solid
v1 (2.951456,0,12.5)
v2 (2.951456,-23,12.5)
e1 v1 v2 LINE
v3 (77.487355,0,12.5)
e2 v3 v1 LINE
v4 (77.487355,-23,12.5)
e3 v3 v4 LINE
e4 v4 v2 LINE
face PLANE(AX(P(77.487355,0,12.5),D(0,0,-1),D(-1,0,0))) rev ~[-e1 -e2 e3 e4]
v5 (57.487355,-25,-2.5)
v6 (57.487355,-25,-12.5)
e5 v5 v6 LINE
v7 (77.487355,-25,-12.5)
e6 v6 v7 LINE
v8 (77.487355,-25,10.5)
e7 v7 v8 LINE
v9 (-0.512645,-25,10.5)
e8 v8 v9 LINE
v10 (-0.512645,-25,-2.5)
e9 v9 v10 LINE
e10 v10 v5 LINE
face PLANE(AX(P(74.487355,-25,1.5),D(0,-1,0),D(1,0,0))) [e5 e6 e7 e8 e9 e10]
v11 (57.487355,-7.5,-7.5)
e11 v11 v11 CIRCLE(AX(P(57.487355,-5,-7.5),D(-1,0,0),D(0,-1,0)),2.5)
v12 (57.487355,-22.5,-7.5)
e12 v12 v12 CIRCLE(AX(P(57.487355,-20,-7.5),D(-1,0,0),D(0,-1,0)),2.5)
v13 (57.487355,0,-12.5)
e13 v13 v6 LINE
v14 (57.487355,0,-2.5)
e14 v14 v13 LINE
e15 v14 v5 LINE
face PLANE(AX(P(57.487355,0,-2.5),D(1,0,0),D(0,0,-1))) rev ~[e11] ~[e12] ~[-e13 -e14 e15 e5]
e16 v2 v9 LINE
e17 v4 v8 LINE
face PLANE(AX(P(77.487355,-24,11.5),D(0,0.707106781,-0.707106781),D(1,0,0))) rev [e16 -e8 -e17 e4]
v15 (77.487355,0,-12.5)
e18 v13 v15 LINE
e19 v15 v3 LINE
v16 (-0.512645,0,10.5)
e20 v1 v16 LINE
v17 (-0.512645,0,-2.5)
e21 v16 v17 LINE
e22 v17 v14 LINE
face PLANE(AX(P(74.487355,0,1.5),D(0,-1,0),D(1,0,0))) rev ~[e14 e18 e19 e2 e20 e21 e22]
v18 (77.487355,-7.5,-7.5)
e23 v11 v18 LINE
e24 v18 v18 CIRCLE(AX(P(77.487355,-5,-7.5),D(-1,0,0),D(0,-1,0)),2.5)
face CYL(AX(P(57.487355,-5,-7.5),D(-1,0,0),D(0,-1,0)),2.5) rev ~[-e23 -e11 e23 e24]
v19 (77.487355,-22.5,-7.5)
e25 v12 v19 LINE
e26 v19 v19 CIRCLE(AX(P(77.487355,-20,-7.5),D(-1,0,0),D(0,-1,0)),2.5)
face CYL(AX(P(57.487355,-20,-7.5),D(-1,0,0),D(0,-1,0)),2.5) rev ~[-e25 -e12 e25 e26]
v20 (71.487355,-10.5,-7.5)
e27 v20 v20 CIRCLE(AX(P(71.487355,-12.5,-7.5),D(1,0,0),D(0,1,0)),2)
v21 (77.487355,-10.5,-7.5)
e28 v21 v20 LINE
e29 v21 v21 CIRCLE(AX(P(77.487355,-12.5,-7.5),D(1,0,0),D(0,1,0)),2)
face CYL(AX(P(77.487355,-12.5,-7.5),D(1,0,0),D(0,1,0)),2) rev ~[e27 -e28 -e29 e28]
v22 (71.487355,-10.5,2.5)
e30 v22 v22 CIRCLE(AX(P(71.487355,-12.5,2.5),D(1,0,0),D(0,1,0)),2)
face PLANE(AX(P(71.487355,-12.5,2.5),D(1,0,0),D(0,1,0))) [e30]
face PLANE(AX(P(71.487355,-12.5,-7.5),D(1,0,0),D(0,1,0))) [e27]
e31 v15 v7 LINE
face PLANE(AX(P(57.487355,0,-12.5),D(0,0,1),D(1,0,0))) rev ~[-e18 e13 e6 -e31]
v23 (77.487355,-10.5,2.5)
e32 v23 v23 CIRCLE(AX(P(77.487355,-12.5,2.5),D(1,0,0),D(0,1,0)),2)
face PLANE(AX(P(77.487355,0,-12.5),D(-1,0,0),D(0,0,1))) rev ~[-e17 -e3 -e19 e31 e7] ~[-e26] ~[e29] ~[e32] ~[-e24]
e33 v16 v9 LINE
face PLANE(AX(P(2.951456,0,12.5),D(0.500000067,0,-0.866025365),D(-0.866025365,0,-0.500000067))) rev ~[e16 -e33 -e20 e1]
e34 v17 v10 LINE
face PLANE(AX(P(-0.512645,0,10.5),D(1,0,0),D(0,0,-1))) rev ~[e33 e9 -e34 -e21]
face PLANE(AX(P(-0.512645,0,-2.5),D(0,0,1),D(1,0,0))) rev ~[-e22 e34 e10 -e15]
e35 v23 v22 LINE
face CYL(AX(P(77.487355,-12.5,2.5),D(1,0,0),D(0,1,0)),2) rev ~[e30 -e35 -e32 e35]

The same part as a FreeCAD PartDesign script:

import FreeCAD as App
import Part
import Sketcher
from FreeCAD import Vector
Q = App.Units.Quantity


def edges_at(feature, points):
    """Names of the edges that pass closest to the given points."""
    edges = feature.Shape.Edges
    near = lambda p: min(range(len(edges)), key=lambda i: edges[i].distToShape(Part.Vertex(*p))[0])
    return sorted({f"Edge{near(p) + 1}" for p in points})

doc = App.newDocument("Part")
params = doc.addObject("Spreadsheet::Sheet", "Params")
for row, (alias, value) in enumerate([
    ("sketch1_width", "58 mm"),
    ("sketch1_width2", "20 mm"),
    ("sketch1_height", "13 mm"),
    ("sketch1_height2", "10 mm"),
    ("sketch1_height3", "25 mm"),
    ("pad1_length", "25 mm"),
    ("sketch2_diameter", "5 mm"),
    ("sketch3_diameter", "4 mm"),
    ("pocket2_length", "6 mm"),
    ("chamfer_size", "2 mm"),
], start=1):
    params.set(f"A{row}", alias)
    params.set(f"B{row}", "=" + value)
    params.setAlias(f"B{row}", alias)

body = doc.addObject("PartDesign::Body", "Body")

sketch1 = doc.addObject("Sketcher::SketchObject", "Sketch")
body.addObject(sketch1)
sketch1.AttachmentSupport = (doc.XZ_Plane, [""])
sketch1.MapMode = "FlatFace"
sketch1.addGeometry(Part.LineSegment(Vector(77.487355, 12.5, 0), Vector(2.951456, 12.5, 0)), False)
sketch1.addGeometry(Part.LineSegment(Vector(2.951456, 12.5, 0), Vector(-0.512645, 10.5, 0)), False)
sketch1.addGeometry(Part.LineSegment(Vector(-0.512645, 10.5, 0), Vector(-0.512645, -2.5, 0)), False)
sketch1.addGeometry(Part.LineSegment(Vector(-0.512645, -2.5, 0), Vector(57.487355, -2.5, 0)), False)
sketch1.addGeometry(Part.LineSegment(Vector(57.487355, -2.5, 0), Vector(57.487355, -12.5, 0)), False)
sketch1.addGeometry(Part.LineSegment(Vector(57.487355, -12.5, 0), Vector(77.487355, -12.5, 0)), False)
sketch1.addGeometry(Part.LineSegment(Vector(77.487355, -12.5, 0), Vector(77.487355, 12.5, 0)), False)
sketch1.addConstraint(Sketcher.Constraint("Coincident", 0, 2, 1, 1))
sketch1.addConstraint(Sketcher.Constraint("Coincident", 1, 2, 2, 1))
sketch1.addConstraint(Sketcher.Constraint("Coincident", 2, 2, 3, 1))
sketch1.addConstraint(Sketcher.Constraint("Coincident", 3, 2, 4, 1))
sketch1.addConstraint(Sketcher.Constraint("Coincident", 4, 2, 5, 1))
sketch1.addConstraint(Sketcher.Constraint("Coincident", 5, 2, 6, 1))
sketch1.addConstraint(Sketcher.Constraint("Coincident", 6, 2, 0, 1))
sketch1.addConstraint(Sketcher.Constraint("Horizontal", 0))
sketch1.addConstraint(Sketcher.Constraint("Vertical", 2))
sketch1.addConstraint(Sketcher.Constraint("Horizontal", 3))
sketch1.addConstraint(Sketcher.Constraint("Vertical", 4))
sketch1.addConstraint(Sketcher.Constraint("Horizontal", 5))
sketch1.addConstraint(Sketcher.Constraint("Vertical", 6))
sketch1.addConstraint(Sketcher.Constraint("DistanceX", 3, 1, 3, 2, 58.0))
sketch1.addConstraint(Sketcher.Constraint("DistanceX", 5, 1, 5, 2, 20.0))
sketch1.addConstraint(Sketcher.Constraint("DistanceY", 2, 2, 2, 1, 13.0))
sketch1.addConstraint(Sketcher.Constraint("DistanceY", 4, 2, 4, 1, 10.0))
sketch1.addConstraint(Sketcher.Constraint("DistanceY", 6, 1, 6, 2, 25.0))
sketch1.addConstraint(Sketcher.Constraint("Angle", 1, Q("-149.999996 deg")))
sketch1.addConstraint(Sketcher.Constraint("DistanceY", -1, 1, 0, 2, 12.5))
sketch1.addConstraint(Sketcher.Constraint("DistanceX", -1, 1, 0, 2, 2.951456))
sketch1.setExpression("Constraints[13]", "Params.sketch1_width")
sketch1.setExpression("Constraints[14]", "Params.sketch1_width2")
sketch1.setExpression("Constraints[15]", "Params.sketch1_height")
sketch1.setExpression("Constraints[16]", "Params.sketch1_height2")
sketch1.setExpression("Constraints[17]", "Params.sketch1_height3")
pad1 = doc.addObject("PartDesign::Pad", "Pad")
body.addObject(pad1)
pad1.Profile = sketch1
pad1.setExpression("Length", "Params.pad1_length")

sketch2 = doc.addObject("Sketcher::SketchObject", "Sketch001")
body.addObject(sketch2)
sketch2.AttachmentSupport = (doc.YZ_Plane, [""])
sketch2.MapMode = "FlatFace"
sketch2.AttachmentOffset = App.Placement(Vector(0, 0, 57.487355), App.Rotation())
sketch2.addGeometry(Part.Circle(Vector(-20, -7.5, 0), Vector(0, 0, 1), 2.5), False)
sketch2.addGeometry(Part.Circle(Vector(-5, -7.5, 0), Vector(0, 0, 1), 2.5), False)
sketch2.addConstraint(Sketcher.Constraint("Equal", 0, 1))
sketch2.addConstraint(Sketcher.Constraint("Horizontal", 0, 3, 1, 3))
sketch2.addConstraint(Sketcher.Constraint("Diameter", 0, 5.0))
sketch2.addConstraint(Sketcher.Constraint("DistanceX", 0, 3, -1, 1, 20.0))
sketch2.addConstraint(Sketcher.Constraint("DistanceX", 1, 3, -1, 1, 5.0))
sketch2.addConstraint(Sketcher.Constraint("DistanceY", 0, 3, -1, 1, 7.5))
sketch2.setExpression("Constraints[2]", "Params.sketch2_diameter")
pocket1 = doc.addObject("PartDesign::Pocket", "Pocket")
body.addObject(pocket1)
pocket1.Profile = sketch2
pocket1.Type = "ThroughAll"
pocket1.Reversed = True

sketch3 = doc.addObject("Sketcher::SketchObject", "Sketch002")
body.addObject(sketch3)
sketch3.AttachmentSupport = (doc.YZ_Plane, [""])
sketch3.MapMode = "FlatFace"
sketch3.AttachmentOffset = App.Placement(Vector(0, 0, 77.487355), App.Rotation())
sketch3.addGeometry(Part.Circle(Vector(-12.5, 2.5, 0), Vector(0, 0, 1), 2), False)
sketch3.addGeometry(Part.Circle(Vector(-12.5, -7.5, 0), Vector(0, 0, 1), 2), False)
sketch3.addConstraint(Sketcher.Constraint("Equal", 0, 1))
sketch3.addConstraint(Sketcher.Constraint("Vertical", 0, 3, 1, 3))
sketch3.addConstraint(Sketcher.Constraint("Diameter", 0, 4.0))
sketch3.addConstraint(Sketcher.Constraint("DistanceY", 1, 3, 0, 3, 10.0))
sketch3.addConstraint(Sketcher.Constraint("DistanceX", 0, 3, -1, 1, 12.5))
sketch3.addConstraint(Sketcher.Constraint("DistanceY", -1, 1, 0, 3, 2.5))
sketch3.setExpression("Constraints[2]", "Params.sketch3_diameter")
pocket2 = doc.addObject("PartDesign::Pocket", "Pocket001")
body.addObject(pocket2)
pocket2.Profile = sketch3
pocket2.setExpression("Length", "Params.pocket2_length")
doc.recompute()

chamfer = doc.addObject("PartDesign::Chamfer", "Chamfer")
body.addObject(chamfer)
chamfer.Base = (pocket2, edges_at(pocket2, [(40.219, -25, 12.5)]))
chamfer.setExpression("Size", "Params.chamfer_size")

doc.recompute()
